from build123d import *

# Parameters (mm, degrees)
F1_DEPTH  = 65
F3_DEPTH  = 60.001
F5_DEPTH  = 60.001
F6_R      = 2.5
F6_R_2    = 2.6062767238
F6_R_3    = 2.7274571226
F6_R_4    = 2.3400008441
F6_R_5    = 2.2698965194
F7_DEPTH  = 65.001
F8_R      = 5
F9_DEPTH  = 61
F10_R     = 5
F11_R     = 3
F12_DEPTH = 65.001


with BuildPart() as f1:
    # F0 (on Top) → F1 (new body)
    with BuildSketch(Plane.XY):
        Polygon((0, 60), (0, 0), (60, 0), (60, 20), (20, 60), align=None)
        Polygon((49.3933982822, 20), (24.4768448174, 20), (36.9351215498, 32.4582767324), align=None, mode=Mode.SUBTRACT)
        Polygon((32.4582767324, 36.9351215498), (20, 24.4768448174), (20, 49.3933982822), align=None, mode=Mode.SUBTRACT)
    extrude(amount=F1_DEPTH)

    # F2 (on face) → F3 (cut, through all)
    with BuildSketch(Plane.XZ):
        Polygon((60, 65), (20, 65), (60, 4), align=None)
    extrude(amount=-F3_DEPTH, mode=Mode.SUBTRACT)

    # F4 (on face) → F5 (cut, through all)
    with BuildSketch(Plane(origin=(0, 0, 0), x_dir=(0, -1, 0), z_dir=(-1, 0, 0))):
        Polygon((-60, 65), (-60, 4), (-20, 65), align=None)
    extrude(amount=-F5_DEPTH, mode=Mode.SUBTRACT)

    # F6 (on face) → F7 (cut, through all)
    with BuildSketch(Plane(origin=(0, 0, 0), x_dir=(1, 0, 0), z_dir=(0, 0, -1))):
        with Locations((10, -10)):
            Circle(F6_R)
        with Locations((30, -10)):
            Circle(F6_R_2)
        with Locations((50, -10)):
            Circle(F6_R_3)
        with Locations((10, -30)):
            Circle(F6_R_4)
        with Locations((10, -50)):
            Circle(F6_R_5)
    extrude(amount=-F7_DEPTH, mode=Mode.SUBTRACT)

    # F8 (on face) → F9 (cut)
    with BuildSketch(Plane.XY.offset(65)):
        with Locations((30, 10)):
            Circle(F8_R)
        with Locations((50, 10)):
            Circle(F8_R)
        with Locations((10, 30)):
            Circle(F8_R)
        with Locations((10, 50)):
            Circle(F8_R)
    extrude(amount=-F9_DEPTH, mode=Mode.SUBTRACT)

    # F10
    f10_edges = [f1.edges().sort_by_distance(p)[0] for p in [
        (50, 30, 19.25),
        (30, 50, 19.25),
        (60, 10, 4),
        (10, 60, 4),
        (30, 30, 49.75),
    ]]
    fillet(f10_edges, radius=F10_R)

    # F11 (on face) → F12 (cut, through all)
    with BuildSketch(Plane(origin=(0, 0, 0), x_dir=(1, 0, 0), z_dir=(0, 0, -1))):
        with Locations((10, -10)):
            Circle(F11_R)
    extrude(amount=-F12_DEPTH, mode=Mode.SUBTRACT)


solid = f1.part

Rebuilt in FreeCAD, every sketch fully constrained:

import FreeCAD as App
import Part
import Sketcher
from FreeCAD import Vector


def edges_at(feature, points):
    """Names of the edges that pass closest to the given points."""
    edges = feature.Shape.Edges
    near = lambda p: min(range(len(edges)), key=lambda i: edges[i].distToShape(Part.Vertex(*p))[0])
    return sorted({f"Edge{near(p) + 1}" for p in points})

doc = App.newDocument("Part")
body = doc.addObject("PartDesign::Body", "Body")

# Sketch on XY plane
sketch1 = doc.addObject("Sketcher::SketchObject", "Sketch")
body.addObject(sketch1)
sketch1.AttachmentSupport = (doc.XY_Plane, [""])
sketch1.MapMode = "FlatFace"
sketch1.addGeometry([
    Part.LineSegment(Vector(0, 60, 0), Vector(0, 0, 0)),  # 0
    Part.LineSegment(Vector(0, 0, 0), Vector(60, 0, 0)),  # 1
    Part.LineSegment(Vector(60, 0, 0), Vector(60, 20, 0)),  # 2
    Part.LineSegment(Vector(60, 20, 0), Vector(20, 60, 0)),  # 3
    Part.LineSegment(Vector(20, 60, 0), Vector(0, 60, 0)),  # 4
    Part.LineSegment(Vector(37, 32, 0), Vector(49, 20, 0)),  # 5
    Part.LineSegment(Vector(49, 20, 0), Vector(24, 20, 0)),  # 6
    Part.LineSegment(Vector(24, 20, 0), Vector(37, 32, 0)),  # 7
    Part.LineSegment(Vector(20, 49, 0), Vector(32, 37, 0)),  # 8
    Part.LineSegment(Vector(32, 37, 0), Vector(20, 24, 0)),  # 9
    Part.LineSegment(Vector(20, 24, 0), Vector(20, 49, 0)),  # 10
], False)
sketch1.addConstraint([
    Sketcher.Constraint("Coincident", 0, 2, 1, 1),
    Sketcher.Constraint("Coincident", 1, 2, 2, 1),
    Sketcher.Constraint("Coincident", 2, 2, 3, 1),
    Sketcher.Constraint("Coincident", 3, 2, 4, 1),
    Sketcher.Constraint("Coincident", 4, 2, 0, 1),
    Sketcher.Constraint("Coincident", 5, 2, 6, 1),
    Sketcher.Constraint("Coincident", 6, 2, 7, 1),
    Sketcher.Constraint("Coincident", 7, 2, 5, 1),
    Sketcher.Constraint("Coincident", 8, 2, 9, 1),
    Sketcher.Constraint("Coincident", 9, 2, 10, 1),
    Sketcher.Constraint("Coincident", 10, 2, 8, 1),
    Sketcher.Constraint("Vertical", 0),
    Sketcher.Constraint("Horizontal", 1),
    Sketcher.Constraint("Vertical", 2),
    Sketcher.Constraint("Horizontal", 4),
    Sketcher.Constraint("Horizontal", 6),
    Sketcher.Constraint("Vertical", 10),
    Sketcher.Constraint("Coincident", 0, 2, -1, 1),
    Sketcher.Constraint("Parallel", 3, 5),
    Sketcher.Constraint("Perpendicular", 5, 7),
    Sketcher.Constraint("Perpendicular", 7, 8),
    Sketcher.Constraint("Perpendicular", 8, 9),
    Sketcher.Constraint("Horizontal", 2, 2, 5, 2),
    Sketcher.Constraint("Vertical", 3, 2, 9, 2),
    Sketcher.Constraint("Equal", 1, 0),
    Sketcher.Constraint("Equal", 4, 2),
    Sketcher.Constraint("Equal", 6, 10),
    Sketcher.Constraint("DistanceX", 1, 1, 1, 2, 60.0),
    Sketcher.Constraint("DistanceX", 4, 2, 4, 1, 20.0),
    Sketcher.Constraint("DistanceX", -1, 1, 5, 2, 49.393398),
    Sketcher.Constraint("DistanceY", -1, 1, 10, 2, 49.393398),
    Sketcher.Constraint("DistanceX", 6, 2, 6, 1, 24.916553),
])
pad1 = doc.addObject("PartDesign::Pad", "Pad")
body.addObject(pad1)
pad1.Profile = sketch1
pad1.Length = 65

# Sketch on XZ plane
sketch2 = doc.addObject("Sketcher::SketchObject", "Sketch001")
body.addObject(sketch2)
sketch2.AttachmentSupport = (doc.XZ_Plane, [""])
sketch2.MapMode = "FlatFace"
sketch2.addGeometry([
    Part.LineSegment(Vector(60, 65, 0), Vector(20, 65, 0)),
    Part.LineSegment(Vector(20, 65, 0), Vector(60, 4, 0)),
    Part.LineSegment(Vector(60, 4, 0), Vector(60, 65, 0)),
], False)
sketch2.addConstraint([
    Sketcher.Constraint("Coincident", 0, 2, 1, 1),
    Sketcher.Constraint("Coincident", 1, 2, 2, 1),
    Sketcher.Constraint("Coincident", 2, 2, 0, 1),
    Sketcher.Constraint("Horizontal", 0),
    Sketcher.Constraint("Vertical", 2),
    Sketcher.Constraint("DistanceX", 0, 2, 0, 1, 40.0),
    Sketcher.Constraint("DistanceY", 2, 1, 2, 2, 61.0),
    Sketcher.Constraint("DistanceX", -1, 1, 0, 2, 20.0),
    Sketcher.Constraint("DistanceY", -1, 1, 0, 2, 65.0),
])
pocket1 = doc.addObject("PartDesign::Pocket", "Pocket")
body.addObject(pocket1)
pocket1.Profile = sketch2
pocket1.Type = "ThroughAll"

# Sketch on YZ plane
sketch3 = doc.addObject("Sketcher::SketchObject", "Sketch002")
body.addObject(sketch3)
sketch3.AttachmentSupport = (doc.YZ_Plane, [""])
sketch3.MapMode = "FlatFace"
sketch3.addGeometry([
    Part.LineSegment(Vector(60, 65, 0), Vector(60, 4, 0)),
    Part.LineSegment(Vector(60, 4, 0), Vector(20, 65, 0)),
    Part.LineSegment(Vector(20, 65, 0), Vector(60, 65, 0)),
], False)
sketch3.addConstraint([
    Sketcher.Constraint("Coincident", 0, 2, 1, 1),
    Sketcher.Constraint("Coincident", 1, 2, 2, 1),
    Sketcher.Constraint("Coincident", 2, 2, 0, 1),
    Sketcher.Constraint("Vertical", 0),
    Sketcher.Constraint("Horizontal", 2),
    Sketcher.Constraint("DistanceX", 2, 1, 2, 2, 40.0),
    Sketcher.Constraint("DistanceY", 0, 2, 0, 1, 61.0),
    Sketcher.Constraint("DistanceX", -1, 1, 0, 2, 60.0),
    Sketcher.Constraint("DistanceY", -1, 1, 0, 2, 4.0),
])
pocket2 = doc.addObject("PartDesign::Pocket", "Pocket001")
body.addObject(pocket2)
pocket2.Profile = sketch3
pocket2.Type = "ThroughAll"
pocket2.Reversed = True

# Sketch on XY plane
sketch4 = doc.addObject("Sketcher::SketchObject", "Sketch003")
body.addObject(sketch4)
sketch4.AttachmentSupport = (doc.XY_Plane, [""])
sketch4.MapMode = "FlatFace"
sketch4.addGeometry([
    Part.Circle(Vector(10, 10, 0), Vector(0, 0, 1), 2.5),  # 0
    Part.Circle(Vector(30, 10, 0), Vector(0, 0, 1), 2.6),  # 1
    Part.Circle(Vector(50, 10, 0), Vector(0, 0, 1), 2.7),  # 2
    Part.Circle(Vector(10, 30, 0), Vector(0, 0, 1), 2.3),  # 3
    Part.Circle(Vector(10, 50, 0), Vector(0, 0, 1), 2.3),  # 4
], False)
sketch4.addConstraint([
    Sketcher.Constraint("Horizontal", 0, 3, 1, 3),
    Sketcher.Constraint("Horizontal", 1, 3, 2, 3),
    Sketcher.Constraint("Vertical", 0, 3, 3, 3),
    Sketcher.Constraint("Vertical", 3, 3, 4, 3),
    Sketcher.Constraint("Diameter", 0, 5.0),
    Sketcher.Constraint("Diameter", 3, 4.680002),
    Sketcher.Constraint("DistanceX", -1, 1, 0, 3, 10.0),
    Sketcher.Constraint("DistanceY", -1, 1, 0, 3, 10.0),
    Sketcher.Constraint("DistanceX", -1, 1, 1, 3, 30.0),
    Sketcher.Constraint("DistanceX", -1, 1, 2, 3, 50.0),
    Sketcher.Constraint("DistanceY", -1, 1, 3, 3, 30.0),
    Sketcher.Constraint("DistanceY", -1, 1, 4, 3, 50.0),
    Sketcher.Constraint("Diameter", 1, 5.212553),
    Sketcher.Constraint("Diameter", 2, 5.454914),
    Sketcher.Constraint("Diameter", 4, 4.539793),
])
pocket3 = doc.addObject("PartDesign::Pocket", "Pocket002")
body.addObject(pocket3)
pocket3.Profile = sketch4
pocket3.Type = "ThroughAll"
pocket3.Reversed = True

# Sketch on XY plane
sketch5 = doc.addObject("Sketcher::SketchObject", "Sketch004")
body.addObject(sketch5)
sketch5.AttachmentSupport = (doc.XY_Plane, [""])
sketch5.MapMode = "FlatFace"
sketch5.AttachmentOffset = App.Placement(Vector(0, 0, 65), App.Rotation())
sketch5.addGeometry([
    Part.Circle(Vector(30, 10, 0), Vector(0, 0, 1), 5),
    Part.Circle(Vector(50, 10, 0), Vector(0, 0, 1), 5),
    Part.Circle(Vector(10, 30, 0), Vector(0, 0, 1), 5),
    Part.Circle(Vector(10, 50, 0), Vector(0, 0, 1), 5),
], False)
sketch5.addConstraint([
    Sketcher.Constraint("Equal", 0, 1),
    Sketcher.Constraint("Equal", 1, 2),
    Sketcher.Constraint("Equal", 2, 3),
    Sketcher.Constraint("Horizontal", 0, 3, 1, 3),
    Sketcher.Constraint("Vertical", 2, 3, 3, 3),
    Sketcher.Constraint("Diameter", 0, 10.0),
    Sketcher.Constraint("DistanceX", -1, 1, 0, 3, 30.0),
    Sketcher.Constraint("DistanceY", -1, 1, 0, 3, 10.0),
    Sketcher.Constraint("DistanceX", -1, 1, 1, 3, 50.0),
    Sketcher.Constraint("DistanceX", -1, 1, 2, 3, 10.0),
    Sketcher.Constraint("DistanceY", -1, 1, 2, 3, 30.0),
    Sketcher.Constraint("DistanceY", -1, 1, 3, 3, 50.0),
])
pocket4 = doc.addObject("PartDesign::Pocket", "Pocket003")
body.addObject(pocket4)
pocket4.Profile = sketch5
pocket4.Length = 61
doc.recompute()

fillet = doc.addObject("PartDesign::Fillet", "Fillet")
body.addObject(fillet)
fillet.Base = (pocket4, edges_at(pocket4, [
    (50, 30, 19.25),
    (30, 50, 19.25),
    (60, 10, 4),
    (10, 60, 4),
    (30, 30, 49.75),
]))
fillet.Radius = 5

# Sketch on XY plane
sketch6 = doc.addObject("Sketcher::SketchObject", "Sketch005")
body.addObject(sketch6)
sketch6.AttachmentSupport = (doc.XY_Plane, [""])
sketch6.MapMode = "FlatFace"
sketch6.addGeometry(Part.Circle(Vector(10, 10, 0), Vector(0, 0, 1), 3), False)
sketch6.addConstraint([
    Sketcher.Constraint("Diameter", 0, 6.0),
    Sketcher.Constraint("DistanceX", -1, 1, 0, 3, 10.0),
    Sketcher.Constraint("DistanceY", -1, 1, 0, 3, 10.0),
])
pocket5 = doc.addObject("PartDesign::Pocket", "Pocket004")
body.addObject(pocket5)
pocket5.Profile = sketch6
pocket5.Type = "ThroughAll"
pocket5.Reversed = True

doc.recompute()
